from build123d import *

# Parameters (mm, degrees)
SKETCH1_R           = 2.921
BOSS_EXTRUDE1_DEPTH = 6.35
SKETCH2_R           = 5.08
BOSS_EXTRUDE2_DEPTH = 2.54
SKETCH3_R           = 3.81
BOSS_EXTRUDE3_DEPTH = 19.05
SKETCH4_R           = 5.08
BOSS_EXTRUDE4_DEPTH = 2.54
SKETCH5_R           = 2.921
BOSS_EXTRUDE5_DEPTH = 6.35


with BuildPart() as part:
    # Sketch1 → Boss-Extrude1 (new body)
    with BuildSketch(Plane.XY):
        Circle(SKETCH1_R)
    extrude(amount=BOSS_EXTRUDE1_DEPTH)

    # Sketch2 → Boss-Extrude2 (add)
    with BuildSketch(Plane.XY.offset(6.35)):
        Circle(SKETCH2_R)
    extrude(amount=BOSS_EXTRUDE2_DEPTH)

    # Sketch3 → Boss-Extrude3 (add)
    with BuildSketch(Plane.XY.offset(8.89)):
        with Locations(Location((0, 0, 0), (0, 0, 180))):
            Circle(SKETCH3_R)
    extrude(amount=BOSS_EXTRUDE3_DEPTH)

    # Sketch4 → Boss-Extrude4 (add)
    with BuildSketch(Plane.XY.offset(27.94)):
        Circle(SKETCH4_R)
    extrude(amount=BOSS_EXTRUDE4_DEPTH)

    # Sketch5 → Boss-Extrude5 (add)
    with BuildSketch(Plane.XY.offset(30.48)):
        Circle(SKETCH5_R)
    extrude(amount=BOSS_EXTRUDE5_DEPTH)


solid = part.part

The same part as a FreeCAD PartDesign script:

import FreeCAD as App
import Part
import Sketcher
Q = App.Units.Quantity

doc = App.newDocument("Part")
body = doc.addObject("PartDesign::Body", "Body")

# Sketch on XY plane
sketch1 = body.newObject("Sketcher::SketchObject", "Sketch")
sketch1.AttachmentSupport = (doc.getObject("XY_Plane"), [""])
sketch1.MapMode = "FlatFace"
sketch1.addGeometry(Part.Circle(App.Vector(0, 0, 0), App.Vector(0, 0, 1), 2.9), False)
sketch1.addConstraint([
    Sketcher.Constraint("Coincident", 0, 3, -1, 1),
    Sketcher.Constraint("Diameter", 0, Q("0.23 in")),
])
pad1 = body.newObject("PartDesign::Pad", "Pad")
pad1.Profile = sketch1
pad1.Length = Q("0.25 in")

# Sketch on XY plane
sketch2 = body.newObject("Sketcher::SketchObject", "Sketch001")
sketch2.AttachmentSupport = (doc.getObject("XY_Plane"), [""])
sketch2.MapMode = "FlatFace"
sketch2.AttachmentOffset = App.Placement(App.Vector(0, 0, 0.25 * 25.4), App.Rotation())
sketch2.addGeometry(Part.Circle(App.Vector(0, 0, 0), App.Vector(0, 0, 1), 5), False)
sketch2.addConstraint([
    Sketcher.Constraint("Coincident", 0, 3, -1, 1),
    Sketcher.Constraint("Diameter", 0, Q("0.4 in")),
])
pad2 = body.newObject("PartDesign::Pad", "Pad001")
pad2.Profile = sketch2
pad2.Length = Q("0.1 in")

# Sketch on XY plane
sketch3 = body.newObject("Sketcher::SketchObject", "Sketch002")
sketch3.AttachmentSupport = (doc.getObject("XY_Plane"), [""])
sketch3.MapMode = "FlatFace"
sketch3.AttachmentOffset = App.Placement(App.Vector(0, 0, 0.35 * 25.4), App.Rotation())
sketch3.addGeometry(Part.Circle(App.Vector(0, 0, 0), App.Vector(0, 0, 1), 3.8), False)
sketch3.addConstraint([
    Sketcher.Constraint("Coincident", 0, 3, -1, 1),
    Sketcher.Constraint("Diameter", 0, Q("0.3 in")),
])
pad3 = body.newObject("PartDesign::Pad", "Pad002")
pad3.Profile = sketch3
pad3.Length = Q("0.75 in")

# Sketch on XY plane
sketch4 = body.newObject("Sketcher::SketchObject", "Sketch003")
sketch4.AttachmentSupport = (doc.getObject("XY_Plane"), [""])
sketch4.MapMode = "FlatFace"
sketch4.AttachmentOffset = App.Placement(App.Vector(0, 0, 1.1 * 25.4), App.Rotation())
sketch4.addGeometry(Part.Circle(App.Vector(0, 0, 0), App.Vector(0, 0, 1), 5), False)
sketch4.addConstraint([
    Sketcher.Constraint("Coincident", 0, 3, -1, 1),
    Sketcher.Constraint("Diameter", 0, Q("0.4 in")),
])
pad4 = body.newObject("PartDesign::Pad", "Pad003")
pad4.Profile = sketch4
pad4.Length = Q("0.1 in")

# Sketch on XY plane
sketch5 = body.newObject("Sketcher::SketchObject", "Sketch004")
sketch5.AttachmentSupport = (doc.getObject("XY_Plane"), [""])
sketch5.MapMode = "FlatFace"
sketch5.AttachmentOffset = App.Placement(App.Vector(0, 0, 1.2 * 25.4), App.Rotation())
sketch5.addGeometry(Part.Circle(App.Vector(0, 0, 0), App.Vector(0, 0, 1), 2.9), False)
sketch5.addConstraint([
    Sketcher.Constraint("Coincident", 0, 3, -1, 1),
    Sketcher.Constraint("Diameter", 0, Q("0.23 in")),
])
pad5 = body.newObject("PartDesign::Pad", "Pad004")
pad5.Profile = sketch5
pad5.Length = Q("0.25 in")

doc.recompute()
